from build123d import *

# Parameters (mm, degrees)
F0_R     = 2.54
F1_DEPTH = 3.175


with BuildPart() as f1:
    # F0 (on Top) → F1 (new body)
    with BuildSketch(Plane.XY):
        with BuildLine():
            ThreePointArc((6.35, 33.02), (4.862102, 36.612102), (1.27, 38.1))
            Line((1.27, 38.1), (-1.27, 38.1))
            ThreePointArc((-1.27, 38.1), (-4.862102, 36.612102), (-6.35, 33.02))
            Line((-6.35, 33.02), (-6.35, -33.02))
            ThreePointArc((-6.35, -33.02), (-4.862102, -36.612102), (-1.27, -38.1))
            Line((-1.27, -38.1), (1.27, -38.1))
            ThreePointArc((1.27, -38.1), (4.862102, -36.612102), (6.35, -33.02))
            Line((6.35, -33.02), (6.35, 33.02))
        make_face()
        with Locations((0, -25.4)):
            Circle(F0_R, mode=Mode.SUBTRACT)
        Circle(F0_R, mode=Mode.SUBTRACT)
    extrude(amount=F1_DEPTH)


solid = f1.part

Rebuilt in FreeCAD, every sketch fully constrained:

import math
import FreeCAD as App
import Part
import Sketcher
Q = App.Units.Quantity

doc = App.newDocument("Part")
body = doc.addObject("PartDesign::Body", "Body")

sketch1 = body.newObject("Sketcher::SketchObject", "Sketch")
sketch1.AttachmentSupport = (doc.getObject("XY_Plane"), [""])
sketch1.MapMode = "FlatFace"
sketch1.addGeometry([
    Part.ArcOfCircle(Part.Circle(App.Vector(1.3, 33, 0), App.Vector(0, 0, 1), 5.1), math.radians(0), math.radians(90)),
    Part.LineSegment(App.Vector(1.3, 38.1, 0), App.Vector(-1.3, 38.1, 0)),
    Part.ArcOfCircle(Part.Circle(App.Vector(-1.3, 33, 0), App.Vector(0, 0, 1), 5.1), math.radians(90), math.radians(180)),
    Part.LineSegment(App.Vector(-6.3, 33, 0), App.Vector(-6.3, -33, 0)),
    Part.ArcOfCircle(Part.Circle(App.Vector(-1.3, -33, 0), App.Vector(0, 0, 1), 5.1), math.radians(-180), math.radians(-90)),
    Part.LineSegment(App.Vector(-1.3, -38.1, 0), App.Vector(1.3, -38.1, 0)),
    Part.ArcOfCircle(Part.Circle(App.Vector(1.3, -33, 0), App.Vector(0, 0, 1), 5.1), math.radians(-90), math.radians(0)),
    Part.LineSegment(App.Vector(6.3, -33, 0), App.Vector(6.3, 33, 0)),
    Part.Circle(App.Vector(0, -25.4, 0), App.Vector(0, 0, 1), 2.5),
    Part.Circle(App.Vector(0, 0, 0), App.Vector(0, 0, 1), 2.5),
], False)
sketch1.addConstraint([
    Sketcher.Constraint("Tangent", 0, 2, 1, 1),
    Sketcher.Constraint("Tangent", 1, 2, 2, 1),
    Sketcher.Constraint("Tangent", 2, 2, 3, 1),
    Sketcher.Constraint("Tangent", 3, 2, 4, 1),
    Sketcher.Constraint("Tangent", 4, 2, 5, 1),
    Sketcher.Constraint("Tangent", 5, 2, 6, 1),
    Sketcher.Constraint("Tangent", 6, 2, 7, 1),
    Sketcher.Constraint("Tangent", 7, 2, 0, 1),
    Sketcher.Constraint("Horizontal", 1),
    Sketcher.Constraint("Vertical", 3),
    Sketcher.Constraint("Horizontal", 5),
    Sketcher.Constraint("Vertical", 7),
    Sketcher.Constraint("Coincident", 9, 3, -1, 1),
    Sketcher.Constraint("Equal", 0, 2),
    Sketcher.Constraint("Equal", 2, 4),
    Sketcher.Constraint("Equal", 4, 6),
    Sketcher.Constraint("Equal", 8, 9),
    Sketcher.Constraint("Symmetric", 0, 3, 4, 3, -1, 1),
    Sketcher.Constraint("PointOnObject", 8, 3, -2),
    Sketcher.Constraint("Diameter", 8, Q("0.2 in")),
    Sketcher.Constraint("Radius", 0, Q("0.2000001 in")),
    Sketcher.Constraint("DistanceX", 1, 2, 1, 1, Q("0.1 in")),
    Sketcher.Constraint("DistanceY", 3, 2, 3, 1, Q("2.6 in")),
    Sketcher.Constraint("DistanceY", 8, 3, -1, 1, Q("1 in")),
])
pad1 = body.newObject("PartDesign::Pad", "Pad")
pad1.Profile = sketch1
pad1.Length = Q("0.125 in")

doc.recompute()
